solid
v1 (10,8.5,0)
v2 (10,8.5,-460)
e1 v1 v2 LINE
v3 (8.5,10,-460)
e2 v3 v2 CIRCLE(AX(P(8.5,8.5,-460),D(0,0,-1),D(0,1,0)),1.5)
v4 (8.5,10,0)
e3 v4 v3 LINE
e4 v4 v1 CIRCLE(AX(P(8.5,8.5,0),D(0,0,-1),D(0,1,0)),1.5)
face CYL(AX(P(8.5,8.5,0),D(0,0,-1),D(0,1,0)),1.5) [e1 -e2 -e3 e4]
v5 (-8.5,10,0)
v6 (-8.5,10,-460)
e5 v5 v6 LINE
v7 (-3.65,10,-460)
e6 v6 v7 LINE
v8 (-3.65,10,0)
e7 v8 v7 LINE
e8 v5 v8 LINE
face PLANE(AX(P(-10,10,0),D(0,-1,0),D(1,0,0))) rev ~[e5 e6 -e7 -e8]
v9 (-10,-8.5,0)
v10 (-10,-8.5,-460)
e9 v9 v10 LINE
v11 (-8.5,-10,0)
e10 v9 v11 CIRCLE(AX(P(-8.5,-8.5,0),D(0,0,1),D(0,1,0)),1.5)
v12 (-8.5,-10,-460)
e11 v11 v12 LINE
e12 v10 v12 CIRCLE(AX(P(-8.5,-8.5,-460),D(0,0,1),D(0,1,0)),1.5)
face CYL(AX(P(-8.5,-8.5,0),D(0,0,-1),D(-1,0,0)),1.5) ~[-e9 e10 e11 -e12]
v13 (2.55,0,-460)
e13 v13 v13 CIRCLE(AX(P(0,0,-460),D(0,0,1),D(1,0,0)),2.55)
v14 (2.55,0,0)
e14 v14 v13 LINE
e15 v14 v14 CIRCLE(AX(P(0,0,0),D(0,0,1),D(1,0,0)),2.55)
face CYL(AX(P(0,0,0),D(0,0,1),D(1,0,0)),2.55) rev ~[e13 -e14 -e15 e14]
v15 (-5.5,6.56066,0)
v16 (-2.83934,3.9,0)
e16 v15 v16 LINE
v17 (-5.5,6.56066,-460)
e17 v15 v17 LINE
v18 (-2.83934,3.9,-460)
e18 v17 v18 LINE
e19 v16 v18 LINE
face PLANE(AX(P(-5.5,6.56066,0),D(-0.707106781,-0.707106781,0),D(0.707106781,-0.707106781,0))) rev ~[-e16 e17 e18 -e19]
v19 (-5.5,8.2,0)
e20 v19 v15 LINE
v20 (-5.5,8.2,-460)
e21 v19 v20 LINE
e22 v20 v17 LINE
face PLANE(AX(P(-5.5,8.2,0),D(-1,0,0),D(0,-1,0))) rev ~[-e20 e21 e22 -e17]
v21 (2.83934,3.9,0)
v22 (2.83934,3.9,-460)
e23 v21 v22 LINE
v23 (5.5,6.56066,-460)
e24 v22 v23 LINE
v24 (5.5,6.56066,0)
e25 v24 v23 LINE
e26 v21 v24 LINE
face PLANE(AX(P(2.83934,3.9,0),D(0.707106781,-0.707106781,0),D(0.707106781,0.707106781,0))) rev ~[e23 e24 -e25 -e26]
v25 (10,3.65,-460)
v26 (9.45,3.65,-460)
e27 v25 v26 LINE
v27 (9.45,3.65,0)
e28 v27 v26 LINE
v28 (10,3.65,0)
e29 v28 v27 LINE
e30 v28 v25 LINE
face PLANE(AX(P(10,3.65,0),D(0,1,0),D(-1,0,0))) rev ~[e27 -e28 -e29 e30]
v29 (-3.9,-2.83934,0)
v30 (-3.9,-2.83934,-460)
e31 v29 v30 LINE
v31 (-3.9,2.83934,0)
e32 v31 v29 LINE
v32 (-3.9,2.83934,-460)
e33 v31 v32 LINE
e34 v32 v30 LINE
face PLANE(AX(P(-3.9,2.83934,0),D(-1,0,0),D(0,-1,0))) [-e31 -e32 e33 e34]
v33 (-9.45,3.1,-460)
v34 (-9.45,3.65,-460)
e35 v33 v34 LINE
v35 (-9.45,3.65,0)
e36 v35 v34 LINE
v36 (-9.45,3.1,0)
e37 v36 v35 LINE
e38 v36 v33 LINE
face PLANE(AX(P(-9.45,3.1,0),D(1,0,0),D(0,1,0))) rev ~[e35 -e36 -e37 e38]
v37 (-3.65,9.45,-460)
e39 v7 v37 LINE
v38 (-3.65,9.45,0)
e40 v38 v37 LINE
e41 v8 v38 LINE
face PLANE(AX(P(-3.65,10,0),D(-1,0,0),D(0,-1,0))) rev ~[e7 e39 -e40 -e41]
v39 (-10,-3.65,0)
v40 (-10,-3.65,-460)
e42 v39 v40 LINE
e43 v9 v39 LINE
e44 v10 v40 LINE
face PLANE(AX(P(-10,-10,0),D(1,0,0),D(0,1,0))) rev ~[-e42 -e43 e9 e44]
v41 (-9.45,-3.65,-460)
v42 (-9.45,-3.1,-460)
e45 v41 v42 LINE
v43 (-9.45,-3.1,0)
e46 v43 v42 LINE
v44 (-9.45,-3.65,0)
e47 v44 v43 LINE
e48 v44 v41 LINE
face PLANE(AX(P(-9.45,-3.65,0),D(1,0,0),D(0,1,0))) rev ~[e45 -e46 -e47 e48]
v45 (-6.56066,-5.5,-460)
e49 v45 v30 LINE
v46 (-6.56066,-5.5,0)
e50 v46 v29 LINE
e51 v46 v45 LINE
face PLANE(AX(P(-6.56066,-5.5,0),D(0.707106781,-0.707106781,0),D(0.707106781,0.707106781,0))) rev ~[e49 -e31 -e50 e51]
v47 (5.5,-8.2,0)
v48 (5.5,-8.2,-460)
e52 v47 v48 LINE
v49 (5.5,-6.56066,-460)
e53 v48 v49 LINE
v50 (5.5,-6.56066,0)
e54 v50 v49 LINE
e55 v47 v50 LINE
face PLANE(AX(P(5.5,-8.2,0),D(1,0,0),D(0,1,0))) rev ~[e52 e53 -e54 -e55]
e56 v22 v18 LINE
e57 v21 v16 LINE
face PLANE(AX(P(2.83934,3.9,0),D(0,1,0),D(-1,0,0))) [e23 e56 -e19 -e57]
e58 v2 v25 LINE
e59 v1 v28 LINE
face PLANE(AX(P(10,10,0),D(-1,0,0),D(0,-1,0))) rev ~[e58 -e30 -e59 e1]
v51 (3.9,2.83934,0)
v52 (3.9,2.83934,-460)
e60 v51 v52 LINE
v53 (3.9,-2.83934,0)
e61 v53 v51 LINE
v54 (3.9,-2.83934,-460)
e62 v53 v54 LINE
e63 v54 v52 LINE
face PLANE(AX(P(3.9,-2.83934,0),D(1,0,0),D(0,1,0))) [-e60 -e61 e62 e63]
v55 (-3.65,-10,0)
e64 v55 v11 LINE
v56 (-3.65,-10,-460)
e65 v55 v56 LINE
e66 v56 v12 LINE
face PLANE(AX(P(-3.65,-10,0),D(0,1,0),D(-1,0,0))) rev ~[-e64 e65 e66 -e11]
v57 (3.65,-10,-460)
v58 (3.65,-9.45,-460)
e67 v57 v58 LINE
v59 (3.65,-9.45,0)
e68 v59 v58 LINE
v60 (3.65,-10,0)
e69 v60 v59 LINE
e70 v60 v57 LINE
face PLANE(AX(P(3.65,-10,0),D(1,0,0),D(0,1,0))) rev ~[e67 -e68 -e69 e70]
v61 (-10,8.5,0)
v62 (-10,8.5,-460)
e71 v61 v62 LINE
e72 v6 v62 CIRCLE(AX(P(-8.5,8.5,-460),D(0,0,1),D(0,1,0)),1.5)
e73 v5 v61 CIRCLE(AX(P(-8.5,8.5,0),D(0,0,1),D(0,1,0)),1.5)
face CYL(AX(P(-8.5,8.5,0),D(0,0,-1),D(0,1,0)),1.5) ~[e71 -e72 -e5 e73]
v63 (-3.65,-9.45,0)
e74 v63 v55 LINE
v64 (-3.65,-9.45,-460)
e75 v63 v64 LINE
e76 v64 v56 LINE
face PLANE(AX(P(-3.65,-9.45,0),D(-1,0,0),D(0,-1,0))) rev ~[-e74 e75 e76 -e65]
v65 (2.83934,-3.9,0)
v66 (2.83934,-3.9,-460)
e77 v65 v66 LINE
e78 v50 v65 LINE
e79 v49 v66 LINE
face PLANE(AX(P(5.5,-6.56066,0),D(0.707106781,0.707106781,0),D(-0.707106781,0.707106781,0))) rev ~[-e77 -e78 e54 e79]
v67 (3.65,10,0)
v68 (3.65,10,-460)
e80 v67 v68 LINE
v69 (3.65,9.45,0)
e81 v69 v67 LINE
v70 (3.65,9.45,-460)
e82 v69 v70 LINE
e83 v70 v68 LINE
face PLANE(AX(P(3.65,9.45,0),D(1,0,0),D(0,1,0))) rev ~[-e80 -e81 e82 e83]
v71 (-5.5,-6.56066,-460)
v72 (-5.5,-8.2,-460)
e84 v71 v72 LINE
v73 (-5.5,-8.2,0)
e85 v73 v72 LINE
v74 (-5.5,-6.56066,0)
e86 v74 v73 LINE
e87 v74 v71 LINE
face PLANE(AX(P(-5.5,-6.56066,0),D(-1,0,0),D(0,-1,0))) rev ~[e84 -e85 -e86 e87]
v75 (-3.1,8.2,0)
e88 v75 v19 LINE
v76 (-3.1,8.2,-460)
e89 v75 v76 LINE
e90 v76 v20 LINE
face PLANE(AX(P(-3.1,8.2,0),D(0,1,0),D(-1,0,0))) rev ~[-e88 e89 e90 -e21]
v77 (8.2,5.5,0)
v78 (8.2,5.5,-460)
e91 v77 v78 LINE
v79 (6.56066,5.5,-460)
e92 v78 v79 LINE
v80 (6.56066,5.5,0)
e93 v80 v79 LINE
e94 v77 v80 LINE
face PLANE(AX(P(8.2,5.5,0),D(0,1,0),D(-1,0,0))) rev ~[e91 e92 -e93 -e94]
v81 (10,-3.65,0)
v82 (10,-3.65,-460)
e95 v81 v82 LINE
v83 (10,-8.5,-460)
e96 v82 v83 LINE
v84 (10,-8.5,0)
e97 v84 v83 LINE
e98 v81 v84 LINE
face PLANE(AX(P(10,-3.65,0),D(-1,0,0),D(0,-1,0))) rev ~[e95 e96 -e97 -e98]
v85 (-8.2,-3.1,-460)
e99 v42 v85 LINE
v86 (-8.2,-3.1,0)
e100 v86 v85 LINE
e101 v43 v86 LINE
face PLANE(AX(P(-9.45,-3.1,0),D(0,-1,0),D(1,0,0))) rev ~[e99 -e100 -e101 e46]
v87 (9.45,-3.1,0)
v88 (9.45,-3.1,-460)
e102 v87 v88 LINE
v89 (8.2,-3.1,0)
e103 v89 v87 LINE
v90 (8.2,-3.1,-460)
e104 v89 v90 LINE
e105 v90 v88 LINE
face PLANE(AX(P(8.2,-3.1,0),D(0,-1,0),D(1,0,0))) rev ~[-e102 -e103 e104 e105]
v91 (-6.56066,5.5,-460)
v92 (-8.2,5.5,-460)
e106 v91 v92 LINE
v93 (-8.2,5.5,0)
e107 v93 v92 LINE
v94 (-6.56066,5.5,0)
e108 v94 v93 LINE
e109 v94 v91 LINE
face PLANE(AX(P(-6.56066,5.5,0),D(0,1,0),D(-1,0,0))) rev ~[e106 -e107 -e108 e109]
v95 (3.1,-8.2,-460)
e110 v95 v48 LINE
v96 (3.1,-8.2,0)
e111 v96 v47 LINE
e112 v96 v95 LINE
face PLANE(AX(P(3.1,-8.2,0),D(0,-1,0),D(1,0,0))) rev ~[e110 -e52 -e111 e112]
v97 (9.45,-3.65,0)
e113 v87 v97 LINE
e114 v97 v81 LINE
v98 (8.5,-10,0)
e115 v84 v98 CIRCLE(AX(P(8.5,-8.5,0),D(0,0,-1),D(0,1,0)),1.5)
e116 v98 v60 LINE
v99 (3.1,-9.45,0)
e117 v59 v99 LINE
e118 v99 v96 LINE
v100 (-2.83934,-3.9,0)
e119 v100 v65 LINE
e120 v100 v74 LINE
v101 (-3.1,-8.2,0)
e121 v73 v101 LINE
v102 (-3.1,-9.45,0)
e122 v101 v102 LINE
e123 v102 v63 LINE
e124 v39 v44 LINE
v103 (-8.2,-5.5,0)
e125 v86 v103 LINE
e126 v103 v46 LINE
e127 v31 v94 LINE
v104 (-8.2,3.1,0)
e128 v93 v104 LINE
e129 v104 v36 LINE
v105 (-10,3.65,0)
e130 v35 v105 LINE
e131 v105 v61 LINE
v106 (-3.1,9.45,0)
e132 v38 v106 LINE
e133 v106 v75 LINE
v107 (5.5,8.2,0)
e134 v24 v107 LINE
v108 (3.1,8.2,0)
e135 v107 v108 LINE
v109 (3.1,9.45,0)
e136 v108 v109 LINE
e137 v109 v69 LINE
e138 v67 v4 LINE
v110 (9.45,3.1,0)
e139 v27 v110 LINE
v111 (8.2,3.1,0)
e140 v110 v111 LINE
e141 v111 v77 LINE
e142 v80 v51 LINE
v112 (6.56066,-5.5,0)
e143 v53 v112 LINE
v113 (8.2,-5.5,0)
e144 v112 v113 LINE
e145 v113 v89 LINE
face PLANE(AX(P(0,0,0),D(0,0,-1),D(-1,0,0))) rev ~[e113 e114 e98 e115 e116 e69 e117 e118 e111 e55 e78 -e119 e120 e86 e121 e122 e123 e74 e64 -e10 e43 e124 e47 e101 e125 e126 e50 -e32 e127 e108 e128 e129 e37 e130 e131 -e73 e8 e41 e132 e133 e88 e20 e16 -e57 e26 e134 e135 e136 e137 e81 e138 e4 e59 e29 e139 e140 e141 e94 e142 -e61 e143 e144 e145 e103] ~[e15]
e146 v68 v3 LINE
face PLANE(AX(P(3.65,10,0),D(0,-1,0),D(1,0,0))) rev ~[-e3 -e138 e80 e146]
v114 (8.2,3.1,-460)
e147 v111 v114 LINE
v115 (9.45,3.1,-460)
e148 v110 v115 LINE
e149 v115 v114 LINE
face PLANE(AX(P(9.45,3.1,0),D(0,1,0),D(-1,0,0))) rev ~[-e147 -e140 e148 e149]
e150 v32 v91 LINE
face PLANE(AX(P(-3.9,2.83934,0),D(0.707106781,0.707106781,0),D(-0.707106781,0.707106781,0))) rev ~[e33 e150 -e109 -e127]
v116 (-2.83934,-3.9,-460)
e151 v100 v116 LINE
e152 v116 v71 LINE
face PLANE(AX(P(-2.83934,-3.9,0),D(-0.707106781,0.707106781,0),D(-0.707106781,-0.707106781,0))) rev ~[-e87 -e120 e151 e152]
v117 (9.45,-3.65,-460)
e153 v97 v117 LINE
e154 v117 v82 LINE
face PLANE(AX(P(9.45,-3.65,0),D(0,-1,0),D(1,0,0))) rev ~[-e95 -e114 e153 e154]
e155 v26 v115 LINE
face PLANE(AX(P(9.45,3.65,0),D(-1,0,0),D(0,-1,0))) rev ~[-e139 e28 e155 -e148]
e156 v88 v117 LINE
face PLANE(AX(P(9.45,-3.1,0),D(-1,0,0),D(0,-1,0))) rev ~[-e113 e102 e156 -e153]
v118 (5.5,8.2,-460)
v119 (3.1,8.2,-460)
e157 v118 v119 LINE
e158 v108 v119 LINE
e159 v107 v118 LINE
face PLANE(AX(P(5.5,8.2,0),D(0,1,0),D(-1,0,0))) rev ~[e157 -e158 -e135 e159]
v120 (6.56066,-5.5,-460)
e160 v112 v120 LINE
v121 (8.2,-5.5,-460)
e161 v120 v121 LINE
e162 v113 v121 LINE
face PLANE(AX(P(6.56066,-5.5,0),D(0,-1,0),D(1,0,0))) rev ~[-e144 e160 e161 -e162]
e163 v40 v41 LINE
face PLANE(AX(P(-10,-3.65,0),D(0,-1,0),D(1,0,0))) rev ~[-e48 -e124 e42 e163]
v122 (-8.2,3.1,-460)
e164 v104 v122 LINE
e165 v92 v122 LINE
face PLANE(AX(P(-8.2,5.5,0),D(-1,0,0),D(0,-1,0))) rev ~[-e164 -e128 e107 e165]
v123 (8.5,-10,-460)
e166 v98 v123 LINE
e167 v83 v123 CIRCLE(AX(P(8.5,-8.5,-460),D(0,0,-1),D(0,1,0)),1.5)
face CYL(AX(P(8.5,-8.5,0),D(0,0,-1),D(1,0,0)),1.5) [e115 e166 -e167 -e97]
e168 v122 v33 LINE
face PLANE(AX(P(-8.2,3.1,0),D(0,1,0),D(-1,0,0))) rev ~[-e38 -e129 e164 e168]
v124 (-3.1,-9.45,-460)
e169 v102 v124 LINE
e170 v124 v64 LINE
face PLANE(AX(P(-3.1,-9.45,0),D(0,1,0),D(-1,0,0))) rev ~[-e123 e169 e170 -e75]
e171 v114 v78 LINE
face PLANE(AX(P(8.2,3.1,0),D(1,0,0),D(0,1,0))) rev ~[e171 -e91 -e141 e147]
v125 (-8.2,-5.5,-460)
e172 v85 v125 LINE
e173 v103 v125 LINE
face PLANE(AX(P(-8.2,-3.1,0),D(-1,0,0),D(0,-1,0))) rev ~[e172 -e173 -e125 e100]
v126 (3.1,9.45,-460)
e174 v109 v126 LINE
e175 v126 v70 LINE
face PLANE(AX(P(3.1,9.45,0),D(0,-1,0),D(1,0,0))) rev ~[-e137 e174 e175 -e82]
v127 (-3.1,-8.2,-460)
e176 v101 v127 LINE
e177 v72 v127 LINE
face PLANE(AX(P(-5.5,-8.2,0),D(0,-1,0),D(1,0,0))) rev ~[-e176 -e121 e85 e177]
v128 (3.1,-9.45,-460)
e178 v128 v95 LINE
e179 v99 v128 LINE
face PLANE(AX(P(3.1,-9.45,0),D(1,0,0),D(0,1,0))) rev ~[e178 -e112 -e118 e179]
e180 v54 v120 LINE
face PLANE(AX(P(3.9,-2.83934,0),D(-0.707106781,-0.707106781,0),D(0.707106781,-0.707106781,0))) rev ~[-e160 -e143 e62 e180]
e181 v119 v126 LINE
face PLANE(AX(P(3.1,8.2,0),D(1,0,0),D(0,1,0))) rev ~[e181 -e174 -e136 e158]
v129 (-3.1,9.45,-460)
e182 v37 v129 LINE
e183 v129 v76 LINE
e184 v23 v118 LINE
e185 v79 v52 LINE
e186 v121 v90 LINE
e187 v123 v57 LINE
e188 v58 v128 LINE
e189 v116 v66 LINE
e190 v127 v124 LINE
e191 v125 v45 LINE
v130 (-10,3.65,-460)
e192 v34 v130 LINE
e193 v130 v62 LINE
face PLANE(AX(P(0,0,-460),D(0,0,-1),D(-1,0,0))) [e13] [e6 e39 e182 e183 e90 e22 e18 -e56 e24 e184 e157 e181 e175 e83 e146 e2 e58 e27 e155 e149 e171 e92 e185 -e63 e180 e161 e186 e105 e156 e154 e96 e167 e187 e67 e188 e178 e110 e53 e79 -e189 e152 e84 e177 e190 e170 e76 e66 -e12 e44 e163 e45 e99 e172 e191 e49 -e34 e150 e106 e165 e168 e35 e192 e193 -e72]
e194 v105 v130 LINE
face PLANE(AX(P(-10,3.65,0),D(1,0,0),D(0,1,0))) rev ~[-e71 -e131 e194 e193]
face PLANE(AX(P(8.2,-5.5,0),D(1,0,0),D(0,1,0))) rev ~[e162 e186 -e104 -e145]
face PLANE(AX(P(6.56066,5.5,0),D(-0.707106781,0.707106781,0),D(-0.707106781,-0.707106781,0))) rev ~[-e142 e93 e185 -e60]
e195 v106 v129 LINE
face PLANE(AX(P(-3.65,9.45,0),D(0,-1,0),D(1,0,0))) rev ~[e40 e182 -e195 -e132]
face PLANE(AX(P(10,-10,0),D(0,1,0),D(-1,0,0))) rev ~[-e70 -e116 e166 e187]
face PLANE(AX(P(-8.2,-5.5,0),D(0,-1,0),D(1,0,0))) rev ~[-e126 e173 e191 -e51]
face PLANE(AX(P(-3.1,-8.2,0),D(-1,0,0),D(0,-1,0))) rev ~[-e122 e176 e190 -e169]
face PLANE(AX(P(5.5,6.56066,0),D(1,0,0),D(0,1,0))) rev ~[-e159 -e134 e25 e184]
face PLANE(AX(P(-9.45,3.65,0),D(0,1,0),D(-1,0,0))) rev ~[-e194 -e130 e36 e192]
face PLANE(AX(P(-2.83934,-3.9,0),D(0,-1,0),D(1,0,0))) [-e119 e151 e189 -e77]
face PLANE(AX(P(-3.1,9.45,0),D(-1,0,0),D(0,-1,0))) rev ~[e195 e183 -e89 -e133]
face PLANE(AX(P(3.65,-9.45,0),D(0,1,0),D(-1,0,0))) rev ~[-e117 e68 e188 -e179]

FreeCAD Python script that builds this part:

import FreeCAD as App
import Part
import Sketcher
Q = App.Units.Quantity


def edges_at(feature, points):
    """Names of the edges that pass closest to the given points."""
    edges = feature.Shape.Edges
    near = lambda p: min(range(len(edges)), key=lambda i: edges[i].distToShape(Part.Vertex(*p))[0])
    return sorted({f"Edge{near(p) + 1}" for p in points})


def add_polygon(sketch, points):
    """Adds a closed chain of lines whose ends are joined by coincident constraints."""
    first, n = sketch.GeometryCount, len(points)
    for a, b in zip(points, points[1:] + points[:1]):
        sketch.addGeometry(Part.LineSegment(App.Vector(*a, 0), App.Vector(*b, 0)), False)
    for i in range(n):
        sketch.addConstraint(Sketcher.Constraint("Coincident", first + i, 2, first + (i + 1) % n, 1))

doc = App.newDocument("Part")
body = doc.addObject("PartDesign::Body", "Body")

# Sketch on XY plane
sketch1 = doc.addObject("Sketcher::SketchObject", "Sketch")
body.addObject(sketch1)
sketch1.AttachmentSupport = (doc.XY_Plane, [""])
sketch1.MapMode = "FlatFace"
add_polygon(sketch1, [(-3.65, 10), (-10, 10), (-10, 3.65), (-9.45, 3.65), (-9.45, 3.1), (-8.2, 3.1), (-8.2, 5.5), (-6.56066, 5.5), (-3.9, 2.83934), (-3.9, -2.83934), (-6.56066, -5.5), (-8.2, -5.5), (-8.2, -3.1), (-9.45, -3.1), (-9.45, -3.65), (-10, -3.65), (-10, -10), (-3.65, -10), (-3.65, -9.45), (-3.1, -9.45), (-3.1, -8.2), (-5.5, -8.2), (-5.5, -6.56066), (-2.83934, -3.9), (2.83934, -3.9), (5.5, -6.56066), (5.5, -8.2), (3.1, -8.2), (3.1, -9.45), (3.65, -9.45), (3.65, -10), (10, -10), (10, -3.65), (9.45, -3.65), (9.45, -3.1), (8.2, -3.1), (8.2, -5.5), (6.56066, -5.5), (3.9, -2.83934), (3.9, 2.83934), (6.56066, 5.5), (8.2, 5.5), (8.2, 3.1), (9.45, 3.1), (9.45, 3.65), (10, 3.65), (10, 10), (3.65, 10), (3.65, 9.45), (3.1, 9.45), (3.1, 8.2), (5.5, 8.2), (5.5, 6.56066), (2.83934, 3.9), (-2.83934, 3.9), (-5.5, 6.56066), (-5.5, 8.2), (-3.1, 8.2), (-3.1, 9.45), (-3.65, 9.45)])  # lines 0-59
sketch1.addConstraint(Sketcher.Constraint("Horizontal", 0))
sketch1.addConstraint(Sketcher.Constraint("Vertical", 1))
sketch1.addConstraint(Sketcher.Constraint("Horizontal", 2))
sketch1.addConstraint(Sketcher.Constraint("Vertical", 3))
sketch1.addConstraint(Sketcher.Constraint("Horizontal", 4))
sketch1.addConstraint(Sketcher.Constraint("Vertical", 5))
sketch1.addConstraint(Sketcher.Constraint("Horizontal", 6))
sketch1.addConstraint(Sketcher.Constraint("Vertical", 8))
sketch1.addConstraint(Sketcher.Constraint("Horizontal", 10))
sketch1.addConstraint(Sketcher.Constraint("Vertical", 11))
sketch1.addConstraint(Sketcher.Constraint("Horizontal", 12))
sketch1.addConstraint(Sketcher.Constraint("Vertical", 13))
sketch1.addConstraint(Sketcher.Constraint("Horizontal", 14))
sketch1.addConstraint(Sketcher.Constraint("Vertical", 15))
sketch1.addConstraint(Sketcher.Constraint("Horizontal", 16))
sketch1.addConstraint(Sketcher.Constraint("Vertical", 17))
sketch1.addConstraint(Sketcher.Constraint("Horizontal", 18))
sketch1.addConstraint(Sketcher.Constraint("Vertical", 19))
sketch1.addConstraint(Sketcher.Constraint("Horizontal", 20))
sketch1.addConstraint(Sketcher.Constraint("Vertical", 21))
sketch1.addConstraint(Sketcher.Constraint("Horizontal", 23))
sketch1.addConstraint(Sketcher.Constraint("Vertical", 25))
sketch1.addConstraint(Sketcher.Constraint("Horizontal", 26))
sketch1.addConstraint(Sketcher.Constraint("Vertical", 27))
sketch1.addConstraint(Sketcher.Constraint("Horizontal", 28))
sketch1.addConstraint(Sketcher.Constraint("Vertical", 29))
sketch1.addConstraint(Sketcher.Constraint("Horizontal", 30))
sketch1.addConstraint(Sketcher.Constraint("Vertical", 31))
sketch1.addConstraint(Sketcher.Constraint("Horizontal", 32))
sketch1.addConstraint(Sketcher.Constraint("Vertical", 33))
sketch1.addConstraint(Sketcher.Constraint("Horizontal", 34))
sketch1.addConstraint(Sketcher.Constraint("Vertical", 35))
sketch1.addConstraint(Sketcher.Constraint("Horizontal", 36))
sketch1.addConstraint(Sketcher.Constraint("Vertical", 38))
sketch1.addConstraint(Sketcher.Constraint("Horizontal", 40))
sketch1.addConstraint(Sketcher.Constraint("Vertical", 41))
sketch1.addConstraint(Sketcher.Constraint("Horizontal", 42))
sketch1.addConstraint(Sketcher.Constraint("Vertical", 43))
sketch1.addConstraint(Sketcher.Constraint("Horizontal", 44))
sketch1.addConstraint(Sketcher.Constraint("Vertical", 45))
sketch1.addConstraint(Sketcher.Constraint("Horizontal", 46))
sketch1.addConstraint(Sketcher.Constraint("Vertical", 47))
sketch1.addConstraint(Sketcher.Constraint("Horizontal", 48))
sketch1.addConstraint(Sketcher.Constraint("Vertical", 49))
sketch1.addConstraint(Sketcher.Constraint("Horizontal", 50))
sketch1.addConstraint(Sketcher.Constraint("Vertical", 51))
sketch1.addConstraint(Sketcher.Constraint("Horizontal", 53))
sketch1.addConstraint(Sketcher.Constraint("Vertical", 55))
sketch1.addConstraint(Sketcher.Constraint("Horizontal", 56))
sketch1.addConstraint(Sketcher.Constraint("Vertical", 57))
sketch1.addConstraint(Sketcher.Constraint("Horizontal", 58))
sketch1.addConstraint(Sketcher.Constraint("Vertical", 59))
sketch1.addConstraint(Sketcher.Constraint("Symmetric", 0, 2, 30, 2, -1, 1))
sketch1.addConstraint(Sketcher.Constraint("Symmetric", 2, 2, 32, 2, -1, 1))
sketch1.addConstraint(Sketcher.Constraint("Symmetric", 4, 2, 34, 2, -1, 1))
sketch1.addConstraint(Sketcher.Constraint("Symmetric", 6, 2, 36, 2, -1, 1))
sketch1.addConstraint(Sketcher.Constraint("Symmetric", 7, 2, 37, 2, -1, 1))
sketch1.addConstraint(Sketcher.Constraint("Symmetric", 9, 2, 39, 2, -1, 1))
sketch1.addConstraint(Sketcher.Constraint("Symmetric", 11, 2, 41, 2, -1, 1))
sketch1.addConstraint(Sketcher.Constraint("Symmetric", 13, 2, 43, 2, -1, 1))
sketch1.addConstraint(Sketcher.Constraint("Symmetric", 15, 2, 45, 2, -1, 1))
sketch1.addConstraint(Sketcher.Constraint("Symmetric", 17, 2, 47, 2, -1, 1))
sketch1.addConstraint(Sketcher.Constraint("Symmetric", 19, 2, 49, 2, -1, 1))
sketch1.addConstraint(Sketcher.Constraint("Symmetric", 21, 2, 51, 2, -1, 1))
sketch1.addConstraint(Sketcher.Constraint("Symmetric", 22, 2, 52, 2, -1, 1))
sketch1.addConstraint(Sketcher.Constraint("Symmetric", 24, 2, 54, 2, -1, 1))
sketch1.addConstraint(Sketcher.Constraint("Symmetric", 26, 2, 56, 2, -1, 1))
sketch1.addConstraint(Sketcher.Constraint("Symmetric", 28, 2, 58, 2, -1, 1))
sketch1.addConstraint(Sketcher.Constraint("Symmetric", 21, 2, 24, 2, -2))
sketch1.addConstraint(Sketcher.Constraint("Symmetric", 19, 2, 26, 2, -2))
sketch1.addConstraint(Sketcher.Constraint("Symmetric", 17, 2, 28, 2, -2))
sketch1.addConstraint(Sketcher.Constraint("Symmetric", 15, 2, 30, 2, -2))
sketch1.addConstraint(Sketcher.Constraint("Symmetric", 13, 2, 32, 2, -2))
sketch1.addConstraint(Sketcher.Constraint("Symmetric", 11, 2, 34, 2, -2))
sketch1.addConstraint(Sketcher.Constraint("Symmetric", 9, 2, 36, 2, -2))
sketch1.addConstraint(Sketcher.Constraint("Perpendicular", 7, 9))
sketch1.addConstraint(Sketcher.Constraint("Parallel", 9, 22))
sketch1.addConstraint(Sketcher.Constraint("Perpendicular", 22, 24))
sketch1.addConstraint(Sketcher.Constraint("Perpendicular", 37, 39))
sketch1.addConstraint(Sketcher.Constraint("Perpendicular", 52, 54))
sketch1.addConstraint(Sketcher.Constraint("Horizontal", 8, 2, 37, 2))
sketch1.addConstraint(Sketcher.Constraint("Equal", 14, 18))
sketch1.addConstraint(Sketcher.Constraint("Equal", 46, 1))
sketch1.addConstraint(Sketcher.Constraint("Equal", 58, 3))
sketch1.addConstraint(Sketcher.Constraint("Equal", 56, 5))
sketch1.addConstraint(Sketcher.Constraint("Equal", 53, 8))
sketch1.addConstraint(Sketcher.Constraint("Equal", 13, 17))
sketch1.addConstraint(Sketcher.Constraint("Equal", 42, 19))
sketch1.addConstraint(Sketcher.Constraint("Equal", 40, 21))
sketch1.addConstraint(Sketcher.Constraint("Equal", 9, 22))
sketch1.addConstraint(Sketcher.Constraint("DistanceX", 20, 2, 20, 1, Q("2.4 mm")))
sketch1.addConstraint(Sketcher.Constraint("DistanceX", 0, 2, -1, 1, Q("10 mm")))
sketch1.addConstraint(Sketcher.Constraint("DistanceX", 0, 2, 0, 1, Q("6.35 mm")))
sketch1.addConstraint(Sketcher.Constraint("DistanceX", 2, 1, 2, 2, Q("0.55 mm")))
sketch1.addConstraint(Sketcher.Constraint("DistanceX", 4, 1, 4, 2, Q("1.25 mm")))
sketch1.addConstraint(Sketcher.Constraint("DistanceX", 7, 2, -1, 1, Q("3.9 mm")))
sketch1.addConstraint(Sketcher.Constraint("DistanceX", 6, 1, 6, 2, Q("1.63934 mm")))
pad1 = doc.addObject("PartDesign::Pad", "Pad")
body.addObject(pad1)
pad1.Profile = sketch1
pad1.Length = 460
pad1.Reversed = True

# Sketch on XY plane
sketch2 = doc.addObject("Sketcher::SketchObject", "Sketch001")
body.addObject(sketch2)
sketch2.AttachmentSupport = (doc.XY_Plane, [""])
sketch2.MapMode = "FlatFace"
sketch2.addGeometry(Part.Circle(App.Vector(0, 0, 0), App.Vector(0, 0, 1), 2.55), False)
sketch2.addConstraint(Sketcher.Constraint("Coincident", 0, 3, -1, 1))
sketch2.addConstraint(Sketcher.Constraint("Diameter", 0, Q("5.1 mm")))
pocket1 = doc.addObject("PartDesign::Pocket", "Pocket")
body.addObject(pocket1)
pocket1.Profile = sketch2
pocket1.Type = "ThroughAll"
doc.recompute()

fillet = doc.addObject("PartDesign::Fillet", "Fillet")
body.addObject(fillet)
fillet.Base = (pocket1, edges_at(pocket1, [
    (10, 10, -230),
    (10, -10, -230),
    (-10, -10, -230),
    (-10, 10, -230),
]))
fillet.Radius = 1.5

doc.recompute()
